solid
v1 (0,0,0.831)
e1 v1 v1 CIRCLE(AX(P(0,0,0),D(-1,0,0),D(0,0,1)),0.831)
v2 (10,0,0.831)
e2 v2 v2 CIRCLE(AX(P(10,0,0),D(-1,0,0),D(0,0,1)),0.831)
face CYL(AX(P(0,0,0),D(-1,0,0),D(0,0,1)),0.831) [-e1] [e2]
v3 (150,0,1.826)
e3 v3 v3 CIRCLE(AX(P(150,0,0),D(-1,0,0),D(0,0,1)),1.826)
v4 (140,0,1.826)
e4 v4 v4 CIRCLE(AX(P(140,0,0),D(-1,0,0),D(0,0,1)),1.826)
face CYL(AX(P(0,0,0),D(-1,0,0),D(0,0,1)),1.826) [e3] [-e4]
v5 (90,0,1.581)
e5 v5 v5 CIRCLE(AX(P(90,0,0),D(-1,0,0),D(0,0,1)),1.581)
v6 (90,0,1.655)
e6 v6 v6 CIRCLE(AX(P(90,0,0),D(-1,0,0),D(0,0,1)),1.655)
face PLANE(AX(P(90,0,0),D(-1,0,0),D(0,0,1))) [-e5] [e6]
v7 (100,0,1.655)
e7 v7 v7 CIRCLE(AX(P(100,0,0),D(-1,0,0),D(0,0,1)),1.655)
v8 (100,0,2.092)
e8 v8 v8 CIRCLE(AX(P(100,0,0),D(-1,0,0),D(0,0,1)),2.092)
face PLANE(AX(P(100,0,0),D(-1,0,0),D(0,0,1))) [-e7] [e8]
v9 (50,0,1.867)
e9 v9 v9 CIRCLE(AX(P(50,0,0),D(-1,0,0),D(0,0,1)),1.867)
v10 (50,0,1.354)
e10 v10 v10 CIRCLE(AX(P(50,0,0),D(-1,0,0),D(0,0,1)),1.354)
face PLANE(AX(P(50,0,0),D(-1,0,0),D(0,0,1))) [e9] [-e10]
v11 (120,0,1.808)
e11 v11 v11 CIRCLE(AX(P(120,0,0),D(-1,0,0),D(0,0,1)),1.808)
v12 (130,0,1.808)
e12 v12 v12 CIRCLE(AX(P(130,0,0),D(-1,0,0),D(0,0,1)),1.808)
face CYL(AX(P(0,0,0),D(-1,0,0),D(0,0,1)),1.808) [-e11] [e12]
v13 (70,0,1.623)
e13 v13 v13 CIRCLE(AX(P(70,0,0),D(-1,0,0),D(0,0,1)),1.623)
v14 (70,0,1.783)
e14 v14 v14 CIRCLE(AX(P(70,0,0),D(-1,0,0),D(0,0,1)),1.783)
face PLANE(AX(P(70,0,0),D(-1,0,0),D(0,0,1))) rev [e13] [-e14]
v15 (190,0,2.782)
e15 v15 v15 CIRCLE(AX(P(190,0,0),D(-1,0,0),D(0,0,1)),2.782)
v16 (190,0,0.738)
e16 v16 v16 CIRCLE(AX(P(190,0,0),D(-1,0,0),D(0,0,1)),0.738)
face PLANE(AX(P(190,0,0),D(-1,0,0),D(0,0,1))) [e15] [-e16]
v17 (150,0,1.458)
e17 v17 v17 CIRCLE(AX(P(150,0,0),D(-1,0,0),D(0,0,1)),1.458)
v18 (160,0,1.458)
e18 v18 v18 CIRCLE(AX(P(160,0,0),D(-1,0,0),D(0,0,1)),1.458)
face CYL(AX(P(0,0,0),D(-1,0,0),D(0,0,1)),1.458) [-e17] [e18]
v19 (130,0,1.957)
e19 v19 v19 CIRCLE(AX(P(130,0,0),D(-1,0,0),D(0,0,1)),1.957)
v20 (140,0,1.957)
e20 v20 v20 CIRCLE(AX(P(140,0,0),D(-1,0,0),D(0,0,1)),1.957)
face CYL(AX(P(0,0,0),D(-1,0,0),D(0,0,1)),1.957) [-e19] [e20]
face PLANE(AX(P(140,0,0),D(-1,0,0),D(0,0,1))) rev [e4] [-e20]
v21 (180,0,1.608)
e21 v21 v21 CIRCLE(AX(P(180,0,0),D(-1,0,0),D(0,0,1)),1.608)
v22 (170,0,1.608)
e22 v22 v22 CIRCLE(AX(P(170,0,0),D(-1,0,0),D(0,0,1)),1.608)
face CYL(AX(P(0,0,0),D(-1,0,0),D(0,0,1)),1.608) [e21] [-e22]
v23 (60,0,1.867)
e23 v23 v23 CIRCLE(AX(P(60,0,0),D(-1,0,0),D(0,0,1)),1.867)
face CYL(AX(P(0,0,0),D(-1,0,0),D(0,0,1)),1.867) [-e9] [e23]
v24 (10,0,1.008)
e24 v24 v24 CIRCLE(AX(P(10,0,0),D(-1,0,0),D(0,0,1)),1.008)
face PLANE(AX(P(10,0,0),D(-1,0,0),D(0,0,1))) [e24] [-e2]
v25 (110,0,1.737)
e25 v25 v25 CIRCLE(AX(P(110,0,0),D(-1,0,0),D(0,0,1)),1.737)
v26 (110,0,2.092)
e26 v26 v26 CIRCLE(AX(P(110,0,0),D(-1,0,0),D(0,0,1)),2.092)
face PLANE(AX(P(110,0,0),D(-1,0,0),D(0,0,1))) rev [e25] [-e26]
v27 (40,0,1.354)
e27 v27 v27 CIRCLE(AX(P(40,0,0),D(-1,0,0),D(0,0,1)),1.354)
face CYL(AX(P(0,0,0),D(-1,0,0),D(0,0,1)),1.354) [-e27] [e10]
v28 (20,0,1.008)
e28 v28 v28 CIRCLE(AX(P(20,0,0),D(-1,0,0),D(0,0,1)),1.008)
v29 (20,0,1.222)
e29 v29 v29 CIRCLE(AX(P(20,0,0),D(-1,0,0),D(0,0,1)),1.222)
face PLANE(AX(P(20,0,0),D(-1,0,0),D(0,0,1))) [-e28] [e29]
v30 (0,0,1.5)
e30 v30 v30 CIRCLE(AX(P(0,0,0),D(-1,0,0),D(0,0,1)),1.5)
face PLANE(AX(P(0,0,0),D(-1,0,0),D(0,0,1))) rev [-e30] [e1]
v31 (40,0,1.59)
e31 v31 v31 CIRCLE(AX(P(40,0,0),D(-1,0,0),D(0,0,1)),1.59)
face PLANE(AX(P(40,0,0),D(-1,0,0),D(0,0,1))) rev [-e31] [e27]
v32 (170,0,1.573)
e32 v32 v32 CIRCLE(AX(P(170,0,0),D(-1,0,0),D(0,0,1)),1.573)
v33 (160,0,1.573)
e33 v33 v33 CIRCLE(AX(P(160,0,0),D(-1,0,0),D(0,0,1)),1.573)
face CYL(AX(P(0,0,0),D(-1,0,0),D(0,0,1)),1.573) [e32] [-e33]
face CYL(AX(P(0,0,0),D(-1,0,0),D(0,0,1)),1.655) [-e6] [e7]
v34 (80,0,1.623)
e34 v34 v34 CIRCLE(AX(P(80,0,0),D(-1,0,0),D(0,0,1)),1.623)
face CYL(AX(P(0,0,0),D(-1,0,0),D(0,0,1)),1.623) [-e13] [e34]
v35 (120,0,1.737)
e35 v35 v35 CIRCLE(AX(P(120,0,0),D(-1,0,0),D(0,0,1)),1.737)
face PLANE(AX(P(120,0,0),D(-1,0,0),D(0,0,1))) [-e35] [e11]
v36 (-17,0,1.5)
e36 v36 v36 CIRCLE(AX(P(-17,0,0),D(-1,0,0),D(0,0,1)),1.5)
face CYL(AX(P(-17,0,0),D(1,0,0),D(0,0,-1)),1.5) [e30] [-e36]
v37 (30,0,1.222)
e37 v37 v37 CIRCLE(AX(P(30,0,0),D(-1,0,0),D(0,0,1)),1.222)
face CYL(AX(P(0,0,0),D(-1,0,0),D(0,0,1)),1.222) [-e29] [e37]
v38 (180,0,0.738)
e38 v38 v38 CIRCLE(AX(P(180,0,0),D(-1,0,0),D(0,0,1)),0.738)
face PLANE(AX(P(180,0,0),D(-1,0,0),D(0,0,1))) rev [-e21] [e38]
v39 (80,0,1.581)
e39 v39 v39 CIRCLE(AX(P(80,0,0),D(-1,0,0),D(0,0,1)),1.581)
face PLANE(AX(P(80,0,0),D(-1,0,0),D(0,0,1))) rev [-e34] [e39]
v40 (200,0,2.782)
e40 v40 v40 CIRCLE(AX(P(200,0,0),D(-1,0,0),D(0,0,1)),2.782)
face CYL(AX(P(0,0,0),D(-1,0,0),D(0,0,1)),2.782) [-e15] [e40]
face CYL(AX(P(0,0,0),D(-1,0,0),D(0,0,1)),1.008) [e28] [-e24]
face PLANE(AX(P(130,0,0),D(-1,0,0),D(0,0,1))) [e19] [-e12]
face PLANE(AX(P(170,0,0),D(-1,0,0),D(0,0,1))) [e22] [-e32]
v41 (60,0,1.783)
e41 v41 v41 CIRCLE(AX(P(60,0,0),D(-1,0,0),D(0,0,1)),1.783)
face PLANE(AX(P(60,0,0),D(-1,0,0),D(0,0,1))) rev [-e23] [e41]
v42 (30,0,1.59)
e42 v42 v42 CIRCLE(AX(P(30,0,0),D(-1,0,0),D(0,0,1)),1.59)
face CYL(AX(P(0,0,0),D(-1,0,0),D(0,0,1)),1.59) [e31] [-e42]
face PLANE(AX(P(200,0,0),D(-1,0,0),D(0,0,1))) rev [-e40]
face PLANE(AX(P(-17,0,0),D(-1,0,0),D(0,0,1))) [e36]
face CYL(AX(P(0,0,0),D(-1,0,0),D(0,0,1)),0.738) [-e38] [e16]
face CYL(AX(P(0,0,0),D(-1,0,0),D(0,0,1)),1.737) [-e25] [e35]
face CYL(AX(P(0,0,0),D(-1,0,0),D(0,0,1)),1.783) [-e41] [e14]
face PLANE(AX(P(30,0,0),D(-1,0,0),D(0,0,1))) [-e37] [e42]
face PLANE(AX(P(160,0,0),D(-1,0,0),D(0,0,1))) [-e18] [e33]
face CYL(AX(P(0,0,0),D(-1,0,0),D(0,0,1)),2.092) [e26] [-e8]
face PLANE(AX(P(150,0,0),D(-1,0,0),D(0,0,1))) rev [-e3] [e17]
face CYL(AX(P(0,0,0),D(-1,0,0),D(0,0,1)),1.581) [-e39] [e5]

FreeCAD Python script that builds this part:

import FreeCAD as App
import Part
import Sketcher

doc = App.newDocument("Part")
body = doc.addObject("PartDesign::Body", "Body")

# Sketch on XY plane
sketch1 = body.newObject("Sketcher::SketchObject", "Sketch")
sketch1.AttachmentSupport = (doc.getObject("XY_Plane"), [""])
sketch1.MapMode = "FlatFace"
sketch1.addGeometry([
    Part.LineSegment(App.Vector(0, 0.831, 0), App.Vector(0, 0, 0)),  # 0
    Part.LineSegment(App.Vector(0, 0, 0), App.Vector(200, 0, 0)),  # 1
    Part.LineSegment(App.Vector(200, 0, 0), App.Vector(200, 2.782, 0)),  # 2
    Part.LineSegment(App.Vector(200, 2.782, 0), App.Vector(190, 2.782, 0)),  # 3
    Part.LineSegment(App.Vector(190, 2.782, 0), App.Vector(190, 0.738, 0)),  # 4
    Part.LineSegment(App.Vector(190, 0.738, 0), App.Vector(180, 0.738, 0)),  # 5
    Part.LineSegment(App.Vector(180, 0.738, 0), App.Vector(180, 1.608, 0)),  # 6
    Part.LineSegment(App.Vector(180, 1.608, 0), App.Vector(170, 1.608, 0)),  # 7
    Part.LineSegment(App.Vector(170, 1.608, 0), App.Vector(170, 1.573, 0)),  # 8
    Part.LineSegment(App.Vector(170, 1.573, 0), App.Vector(160, 1.573, 0)),  # 9
    Part.LineSegment(App.Vector(160, 1.573, 0), App.Vector(160, 1.458, 0)),  # 10
    Part.LineSegment(App.Vector(160, 1.458, 0), App.Vector(150, 1.458, 0)),  # 11
    Part.LineSegment(App.Vector(150, 1.458, 0), App.Vector(150, 1.826, 0)),  # 12
    Part.LineSegment(App.Vector(150, 1.826, 0), App.Vector(140, 1.826, 0)),  # 13
    Part.LineSegment(App.Vector(140, 1.826, 0), App.Vector(140, 1.957, 0)),  # 14
    Part.LineSegment(App.Vector(140, 1.957, 0), App.Vector(130, 1.957, 0)),  # 15
    Part.LineSegment(App.Vector(130, 1.957, 0), App.Vector(130, 1.808, 0)),  # 16
    Part.LineSegment(App.Vector(130, 1.808, 0), App.Vector(120, 1.808, 0)),  # 17
    Part.LineSegment(App.Vector(120, 1.808, 0), App.Vector(120, 1.737, 0)),  # 18
    Part.LineSegment(App.Vector(120, 1.737, 0), App.Vector(110, 1.737, 0)),  # 19
    Part.LineSegment(App.Vector(110, 1.737, 0), App.Vector(110, 2.092, 0)),  # 20
    Part.LineSegment(App.Vector(110, 2.092, 0), App.Vector(100, 2.092, 0)),  # 21
    Part.LineSegment(App.Vector(100, 2.092, 0), App.Vector(100, 1.655, 0)),  # 22
    Part.LineSegment(App.Vector(100, 1.655, 0), App.Vector(90, 1.655, 0)),  # 23
    Part.LineSegment(App.Vector(90, 1.655, 0), App.Vector(90, 1.581, 0)),  # 24
    Part.LineSegment(App.Vector(90, 1.581, 0), App.Vector(80, 1.581, 0)),  # 25
    Part.LineSegment(App.Vector(80, 1.581, 0), App.Vector(80, 1.623, 0)),  # 26
    Part.LineSegment(App.Vector(80, 1.623, 0), App.Vector(70, 1.623, 0)),  # 27
    Part.LineSegment(App.Vector(70, 1.623, 0), App.Vector(70, 1.783, 0)),  # 28
    Part.LineSegment(App.Vector(70, 1.783, 0), App.Vector(60, 1.783, 0)),  # 29
    Part.LineSegment(App.Vector(60, 1.783, 0), App.Vector(60, 1.867, 0)),  # 30
    Part.LineSegment(App.Vector(60, 1.867, 0), App.Vector(50, 1.867, 0)),  # 31
    Part.LineSegment(App.Vector(50, 1.867, 0), App.Vector(50, 1.354, 0)),  # 32
    Part.LineSegment(App.Vector(50, 1.354, 0), App.Vector(40, 1.354, 0)),  # 33
    Part.LineSegment(App.Vector(40, 1.354, 0), App.Vector(40, 1.59, 0)),  # 34
    Part.LineSegment(App.Vector(40, 1.59, 0), App.Vector(30, 1.59, 0)),  # 35
    Part.LineSegment(App.Vector(30, 1.59, 0), App.Vector(30, 1.222, 0)),  # 36
    Part.LineSegment(App.Vector(30, 1.222, 0), App.Vector(20, 1.222, 0)),  # 37
    Part.LineSegment(App.Vector(20, 1.222, 0), App.Vector(20, 1.008, 0)),  # 38
    Part.LineSegment(App.Vector(20, 1.008, 0), App.Vector(10, 1.008, 0)),  # 39
    Part.LineSegment(App.Vector(10, 1.008, 0), App.Vector(10, 0.831, 0)),  # 40
    Part.LineSegment(App.Vector(10, 0.831, 0), App.Vector(0, 0.831, 0)),  # 41
], False)
sketch1.addConstraint([
    Sketcher.Constraint("Coincident", 0, 2, 1, 1),
    Sketcher.Constraint("Coincident", 1, 2, 2, 1),
    Sketcher.Constraint("Coincident", 2, 2, 3, 1),
    Sketcher.Constraint("Coincident", 3, 2, 4, 1),
    Sketcher.Constraint("Coincident", 4, 2, 5, 1),
    Sketcher.Constraint("Coincident", 5, 2, 6, 1),
    Sketcher.Constraint("Coincident", 6, 2, 7, 1),
    Sketcher.Constraint("Coincident", 7, 2, 8, 1),
    Sketcher.Constraint("Coincident", 8, 2, 9, 1),
    Sketcher.Constraint("Coincident", 9, 2, 10, 1),
    Sketcher.Constraint("Coincident", 10, 2, 11, 1),
    Sketcher.Constraint("Coincident", 11, 2, 12, 1),
    Sketcher.Constraint("Coincident", 12, 2, 13, 1),
    Sketcher.Constraint("Coincident", 13, 2, 14, 1),
    Sketcher.Constraint("Coincident", 14, 2, 15, 1),
    Sketcher.Constraint("Coincident", 15, 2, 16, 1),
    Sketcher.Constraint("Coincident", 16, 2, 17, 1),
    Sketcher.Constraint("Coincident", 17, 2, 18, 1),
    Sketcher.Constraint("Coincident", 18, 2, 19, 1),
    Sketcher.Constraint("Coincident", 19, 2, 20, 1),
    Sketcher.Constraint("Coincident", 20, 2, 21, 1),
    Sketcher.Constraint("Coincident", 21, 2, 22, 1),
    Sketcher.Constraint("Coincident", 22, 2, 23, 1),
    Sketcher.Constraint("Coincident", 23, 2, 24, 1),
    Sketcher.Constraint("Coincident", 24, 2, 25, 1),
    Sketcher.Constraint("Coincident", 25, 2, 26, 1),
    Sketcher.Constraint("Coincident", 26, 2, 27, 1),
    Sketcher.Constraint("Coincident", 27, 2, 28, 1),
    Sketcher.Constraint("Coincident", 28, 2, 29, 1),
    Sketcher.Constraint("Coincident", 29, 2, 30, 1),
    Sketcher.Constraint("Coincident", 30, 2, 31, 1),
    Sketcher.Constraint("Coincident", 31, 2, 32, 1),
    Sketcher.Constraint("Coincident", 32, 2, 33, 1),
    Sketcher.Constraint("Coincident", 33, 2, 34, 1),
    Sketcher.Constraint("Coincident", 34, 2, 35, 1),
    Sketcher.Constraint("Coincident", 35, 2, 36, 1),
    Sketcher.Constraint("Coincident", 36, 2, 37, 1),
    Sketcher.Constraint("Coincident", 37, 2, 38, 1),
    Sketcher.Constraint("Coincident", 38, 2, 39, 1),
    Sketcher.Constraint("Coincident", 39, 2, 40, 1),
    Sketcher.Constraint("Coincident", 40, 2, 41, 1),
    Sketcher.Constraint("Coincident", 41, 2, 0, 1),
    Sketcher.Constraint("Vertical", 0),
    Sketcher.Constraint("Horizontal", 1),
    Sketcher.Constraint("Vertical", 2),
    Sketcher.Constraint("Horizontal", 3),
    Sketcher.Constraint("Vertical", 4),
    Sketcher.Constraint("Horizontal", 5),
    Sketcher.Constraint("Vertical", 6),
    Sketcher.Constraint("Horizontal", 7),
    Sketcher.Constraint("Vertical", 8),
    Sketcher.Constraint("Horizontal", 9),
    Sketcher.Constraint("Vertical", 10),
    Sketcher.Constraint("Horizontal", 11),
    Sketcher.Constraint("Vertical", 12),
    Sketcher.Constraint("Horizontal", 13),
    Sketcher.Constraint("Vertical", 14),
    Sketcher.Constraint("Horizontal", 15),
    Sketcher.Constraint("Vertical", 16),
    Sketcher.Constraint("Horizontal", 17),
    Sketcher.Constraint("Vertical", 18),
    Sketcher.Constraint("Horizontal", 19),
    Sketcher.Constraint("Vertical", 20),
    Sketcher.Constraint("Horizontal", 21),
    Sketcher.Constraint("Vertical", 22),
    Sketcher.Constraint("Horizontal", 23),
    Sketcher.Constraint("Vertical", 24),
    Sketcher.Constraint("Horizontal", 25),
    Sketcher.Constraint("Vertical", 26),
    Sketcher.Constraint("Horizontal", 27),
    Sketcher.Constraint("Vertical", 28),
    Sketcher.Constraint("Horizontal", 29),
    Sketcher.Constraint("Vertical", 30),
    Sketcher.Constraint("Horizontal", 31),
    Sketcher.Constraint("Vertical", 32),
    Sketcher.Constraint("Horizontal", 33),
    Sketcher.Constraint("Vertical", 34),
    Sketcher.Constraint("Horizontal", 35),
    Sketcher.Constraint("Vertical", 36),
    Sketcher.Constraint("Horizontal", 37),
    Sketcher.Constraint("Vertical", 38),
    Sketcher.Constraint("Horizontal", 39),
    Sketcher.Constraint("Vertical", 40),
    Sketcher.Constraint("Horizontal", 41),
    Sketcher.Constraint("Coincident", 0, 2, -1, 1),
    Sketcher.Constraint("Equal", 3, 5),
    Sketcher.Constraint("Equal", 5, 7),
    Sketcher.Constraint("Equal", 7, 9),
    Sketcher.Constraint("Equal", 9, 11),
    Sketcher.Constraint("Equal", 11, 13),
    Sketcher.Constraint("Equal", 13, 15),
    Sketcher.Constraint("Equal", 15, 17),
    Sketcher.Constraint("Equal", 17, 19),
    Sketcher.Constraint("Equal", 19, 21),
    Sketcher.Constraint("Equal", 21, 23),
    Sketcher.Constraint("Equal", 23, 25),
    Sketcher.Constraint("Equal", 25, 27),
    Sketcher.Constraint("Equal", 27, 29),
    Sketcher.Constraint("Equal", 29, 31),
    Sketcher.Constraint("Equal", 31, 33),
    Sketcher.Constraint("Equal", 33, 35),
    Sketcher.Constraint("Equal", 35, 37),
    Sketcher.Constraint("Equal", 37, 39),
    Sketcher.Constraint("Equal", 39, 41),
    Sketcher.Constraint("Equal", 12, 36),
    Sketcher.Constraint("DistanceX", 1, 1, 1, 2, 200.0),
    Sketcher.Constraint("DistanceY", 6, 1, 6, 2, 0.87),
    Sketcher.Constraint("DistanceY", 28, 1, 28, 2, 0.16),
    Sketcher.Constraint("DistanceY", 0, 2, 0, 1, 0.831),
    Sketcher.Constraint("DistanceY", 2, 1, 2, 2, 2.782),
    Sketcher.Constraint("DistanceY", 4, 2, 4, 1, 2.044),
    Sketcher.Constraint("DistanceY", 8, 2, 8, 1, 0.035),
    Sketcher.Constraint("DistanceY", 10, 2, 10, 1, 0.115),
    Sketcher.Constraint("DistanceY", 12, 1, 12, 2, 0.368),
    Sketcher.Constraint("DistanceY", 14, 1, 14, 2, 0.131),
    Sketcher.Constraint("DistanceY", 16, 2, 16, 1, 0.149),
    Sketcher.Constraint("DistanceY", 18, 2, 18, 1, 0.071),
    Sketcher.Constraint("DistanceY", 20, 1, 20, 2, 0.355),
    Sketcher.Constraint("DistanceY", 22, 2, 22, 1, 0.437),
    Sketcher.Constraint("DistanceY", 24, 2, 24, 1, 0.074),
    Sketcher.Constraint("DistanceY", 26, 1, 26, 2, 0.042),
    Sketcher.Constraint("DistanceY", 30, 1, 30, 2, 0.084),
    Sketcher.Constraint("DistanceY", 32, 2, 32, 1, 0.513),
    Sketcher.Constraint("DistanceY", 34, 1, 34, 2, 0.236),
    Sketcher.Constraint("DistanceY", 38, 2, 38, 1, 0.214),
])
revolution = body.newObject("PartDesign::Revolution", "Revolution")
revolution.Profile = sketch1
revolution.ReferenceAxis = (sketch1, ["H_Axis"])
revolution.Angle = 360

# Sketch on YZ plane
sketch2 = body.newObject("Sketcher::SketchObject", "Sketch001")
sketch2.AttachmentSupport = (doc.getObject("YZ_Plane"), [""])
sketch2.MapMode = "FlatFace"
sketch2.addGeometry(Part.Circle(App.Vector(0, 0, 0), App.Vector(0, 0, 1), 1.5), False)
sketch2.addConstraint([
    Sketcher.Constraint("Coincident", 0, 3, -1, 1),
    Sketcher.Constraint("Diameter", 0, 3.0),
])
pad1 = body.newObject("PartDesign::Pad", "Pad")
pad1.Profile = sketch2
pad1.Length = 17
pad1.Reversed = True

doc.recompute()
